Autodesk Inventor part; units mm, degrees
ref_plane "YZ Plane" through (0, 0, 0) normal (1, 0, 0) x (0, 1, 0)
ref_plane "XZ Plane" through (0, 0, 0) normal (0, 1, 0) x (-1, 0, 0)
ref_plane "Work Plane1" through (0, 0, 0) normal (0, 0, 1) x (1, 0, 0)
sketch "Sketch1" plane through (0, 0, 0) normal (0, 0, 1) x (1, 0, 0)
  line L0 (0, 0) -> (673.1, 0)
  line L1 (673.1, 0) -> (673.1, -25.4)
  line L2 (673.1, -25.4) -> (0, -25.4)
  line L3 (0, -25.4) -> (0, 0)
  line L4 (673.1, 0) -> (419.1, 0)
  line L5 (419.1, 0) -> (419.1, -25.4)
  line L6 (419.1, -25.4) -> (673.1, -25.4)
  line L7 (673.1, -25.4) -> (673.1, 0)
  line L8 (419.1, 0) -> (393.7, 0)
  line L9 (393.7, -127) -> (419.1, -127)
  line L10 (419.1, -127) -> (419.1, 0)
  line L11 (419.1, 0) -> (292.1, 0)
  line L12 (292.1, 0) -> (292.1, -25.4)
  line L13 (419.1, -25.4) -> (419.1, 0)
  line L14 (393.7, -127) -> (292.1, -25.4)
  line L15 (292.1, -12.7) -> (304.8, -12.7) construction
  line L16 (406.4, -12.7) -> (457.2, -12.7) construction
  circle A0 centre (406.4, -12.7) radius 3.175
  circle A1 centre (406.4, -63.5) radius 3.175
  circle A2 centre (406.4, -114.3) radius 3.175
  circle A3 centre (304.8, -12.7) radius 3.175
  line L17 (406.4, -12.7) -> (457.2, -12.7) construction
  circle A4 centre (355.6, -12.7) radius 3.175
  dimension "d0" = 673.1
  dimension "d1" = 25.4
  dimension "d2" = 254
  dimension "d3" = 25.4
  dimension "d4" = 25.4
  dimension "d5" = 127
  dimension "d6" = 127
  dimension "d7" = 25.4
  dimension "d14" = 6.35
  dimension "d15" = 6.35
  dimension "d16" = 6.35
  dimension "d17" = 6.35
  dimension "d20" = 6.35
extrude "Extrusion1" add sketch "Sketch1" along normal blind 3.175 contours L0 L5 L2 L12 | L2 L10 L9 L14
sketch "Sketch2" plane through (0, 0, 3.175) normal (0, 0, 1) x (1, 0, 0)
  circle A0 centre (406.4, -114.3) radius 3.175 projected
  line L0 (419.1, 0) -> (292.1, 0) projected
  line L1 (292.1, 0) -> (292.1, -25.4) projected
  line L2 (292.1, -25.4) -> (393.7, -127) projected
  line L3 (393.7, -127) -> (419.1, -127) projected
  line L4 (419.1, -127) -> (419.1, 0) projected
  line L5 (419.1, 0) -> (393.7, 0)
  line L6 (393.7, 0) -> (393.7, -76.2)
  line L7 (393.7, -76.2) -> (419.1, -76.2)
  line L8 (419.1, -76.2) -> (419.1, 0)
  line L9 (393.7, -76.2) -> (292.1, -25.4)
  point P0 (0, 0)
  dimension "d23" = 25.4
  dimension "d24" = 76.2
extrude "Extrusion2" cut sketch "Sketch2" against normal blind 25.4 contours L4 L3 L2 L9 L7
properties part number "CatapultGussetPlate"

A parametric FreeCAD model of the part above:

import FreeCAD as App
import Part
import Sketcher

V = App.Vector
Q = App.Units.Quantity

doc = App.newDocument("Part")
body = doc.addObject("PartDesign::Body", "Body")

sketch1 = body.newObject("Sketcher::SketchObject", "Sketch")
sketch1.AttachmentSupport = (doc.getObject("XY_Plane"), [""])
sketch1.MapMode = "FlatFace"
sketch1.addGeometry([
    Part.LineSegment(V(292.1, 0, 0), V(292.1, -25.4, 0)),
    Part.LineSegment(V(292.1, -25.4, 0), V(393.7, -127, 0)),
    Part.LineSegment(V(393.7, -127, 0), V(419.1, -127, 0)),
    Part.LineSegment(V(419.1, -127, 0), V(419.1, 0, 0)),
    Part.LineSegment(V(419.1, 0, 0), V(292.1, 0, 0)),
    Part.Circle(V(304.8, -12.7, 0), V(0, 0, 1), 3.2),
    Part.Circle(V(355.6, -12.7, 0), V(0, 0, 1), 3.2),
    Part.Circle(V(406.4, -12.7, 0), V(0, 0, 1), 3.2),
    Part.Circle(V(406.4, -63.5, 0), V(0, 0, 1), 3.2),
    Part.Circle(V(406.4, -114.3, 0), V(0, 0, 1), 3.2),
], False)
sketch1.addConstraint([
    Sketcher.Constraint("Coincident", 0, 2, 1, 1),
    Sketcher.Constraint("Coincident", 1, 2, 2, 1),
    Sketcher.Constraint("Coincident", 2, 2, 3, 1),
    Sketcher.Constraint("Coincident", 3, 2, 4, 1),
    Sketcher.Constraint("Coincident", 4, 2, 0, 1),
    Sketcher.Constraint("Vertical", 0),
    Sketcher.Constraint("Horizontal", 2),
    Sketcher.Constraint("Vertical", 3),
    Sketcher.Constraint("Horizontal", 4),
    Sketcher.Constraint("Equal", 5, 6),
    Sketcher.Constraint("Equal", 6, 7),
    Sketcher.Constraint("Equal", 7, 8),
    Sketcher.Constraint("Equal", 8, 9),
    Sketcher.Constraint("PointOnObject", 3, 2, -1),
    Sketcher.Constraint("Horizontal", 5, 3, 6, 3),
    Sketcher.Constraint("Horizontal", 6, 3, 7, 3),
    Sketcher.Constraint("Vertical", 7, 3, 8, 3),
    Sketcher.Constraint("Vertical", 8, 3, 9, 3),
    Sketcher.Constraint("Equal", 2, 0),
    Sketcher.Constraint("Equal", 4, 3),
    Sketcher.Constraint("Diameter", 5, Q("0.25 in")),
    Sketcher.Constraint("DistanceX", 2, 1, 2, 2, Q("1 in")),
    Sketcher.Constraint("DistanceX", 4, 2, 4, 1, Q("5 in")),
    Sketcher.Constraint("DistanceX", -1, 1, 5, 3, Q("12 in")),
    Sketcher.Constraint("DistanceX", -1, 1, 6, 3, Q("14 in")),
    Sketcher.Constraint("DistanceX", -1, 1, 7, 3, Q("16 in")),
    Sketcher.Constraint("DistanceY", 8, 3, 7, 3, Q("2 in")),
    Sketcher.Constraint("DistanceY", 9, 3, 8, 3, Q("2 in")),
    Sketcher.Constraint("DistanceY", 5, 3, -1, 1, Q("0.5 in")),
    Sketcher.Constraint("DistanceX", -1, 1, 0, 2, Q("11.5 in")),
])
pad1 = body.newObject("PartDesign::Pad", "Pad")
pad1.Profile = sketch1
pad1.Length = Q("0.125 in")

sketch2 = body.newObject("Sketcher::SketchObject", "Sketch001")
sketch2.AttachmentSupport = (doc.getObject("XY_Plane"), [""])
sketch2.MapMode = "FlatFace"
sketch2.AttachmentOffset = App.Placement(V(0, 0, 0.125 * 25.4), App.Rotation())
sketch2.addGeometry([
    Part.LineSegment(V(419.1, -127, 0), V(419.1, -76.2, 0)),
    Part.LineSegment(V(419.1, -76.2, 0), V(393.7, -76.2, 0)),
    Part.LineSegment(V(393.7, -76.2, 0), V(292.1, -25.4, 0)),
    Part.LineSegment(V(292.1, -25.4, 0), V(393.7, -127, 0)),
    Part.LineSegment(V(393.7, -127, 0), V(419.1, -127, 0)),
    Part.Circle(V(406.4, -114.3, 0), V(0, 0, 1), 3.2),
], False)
sketch2.addConstraint([
    Sketcher.Constraint("Coincident", 0, 2, 1, 1),
    Sketcher.Constraint("Coincident", 1, 2, 2, 1),
    Sketcher.Constraint("Coincident", 2, 2, 3, 1),
    Sketcher.Constraint("Coincident", 3, 2, 4, 1),
    Sketcher.Constraint("Coincident", 4, 2, 0, 1),
    Sketcher.Constraint("Vertical", 0),
    Sketcher.Constraint("Horizontal", 1),
    Sketcher.Constraint("Horizontal", 4),
    Sketcher.Constraint("Vertical", 1, 2, 3, 2),
    Sketcher.Constraint("DistanceX", 1, 2, 1, 1, Q("1 in")),
    Sketcher.Constraint("DistanceY", 0, 2, -1, 1, Q("3 in")),
    Sketcher.Constraint("DistanceY", 2, 2, -1, 1, Q("1 in")),
    Sketcher.Constraint("Diameter", 5, Q("0.25 in")),
    Sketcher.Constraint("DistanceY", 0, 1, 0, 2, Q("2 in")),
    Sketcher.Constraint("DistanceX", -1, 1, 5, 3, Q("16 in")),
    Sketcher.Constraint("Angle", 3, Q("-45 deg")),
    Sketcher.Constraint("DistanceY", 5, 3, -1, 1, Q("4.5 in")),
    Sketcher.Constraint("DistanceX", -1, 1, 0, 2, Q("16.5 in")),
])
pocket1 = body.newObject("PartDesign::Pocket", "Pocket")
pocket1.Profile = sketch2
pocket1.Length = Q("1 in")

doc.recompute()
